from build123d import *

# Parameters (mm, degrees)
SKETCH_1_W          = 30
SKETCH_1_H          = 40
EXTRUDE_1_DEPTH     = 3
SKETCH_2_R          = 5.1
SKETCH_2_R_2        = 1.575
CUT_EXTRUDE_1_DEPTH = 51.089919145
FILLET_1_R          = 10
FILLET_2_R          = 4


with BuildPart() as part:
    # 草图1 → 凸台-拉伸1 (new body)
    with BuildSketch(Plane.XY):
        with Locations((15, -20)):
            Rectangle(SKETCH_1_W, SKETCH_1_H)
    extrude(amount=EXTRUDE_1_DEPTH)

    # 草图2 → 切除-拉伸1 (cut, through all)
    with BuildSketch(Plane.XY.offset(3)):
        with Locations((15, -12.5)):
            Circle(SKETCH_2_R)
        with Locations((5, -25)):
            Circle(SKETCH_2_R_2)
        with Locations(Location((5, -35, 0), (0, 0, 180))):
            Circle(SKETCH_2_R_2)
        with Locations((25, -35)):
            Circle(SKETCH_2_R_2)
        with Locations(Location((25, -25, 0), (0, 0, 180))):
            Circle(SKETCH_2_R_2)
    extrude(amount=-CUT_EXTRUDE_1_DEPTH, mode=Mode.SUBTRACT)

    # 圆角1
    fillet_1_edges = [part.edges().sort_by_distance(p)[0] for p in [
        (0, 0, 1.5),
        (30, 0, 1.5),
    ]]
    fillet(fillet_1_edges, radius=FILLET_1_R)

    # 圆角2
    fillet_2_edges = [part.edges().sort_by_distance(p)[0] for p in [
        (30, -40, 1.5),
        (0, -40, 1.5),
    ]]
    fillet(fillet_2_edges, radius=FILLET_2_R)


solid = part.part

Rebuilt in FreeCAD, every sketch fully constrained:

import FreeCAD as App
import Part
import Sketcher
Q = App.Units.Quantity


def edges_at(feature, points):
    """Names of the edges that pass closest to the given points."""
    edges = feature.Shape.Edges
    near = lambda p: min(range(len(edges)), key=lambda i: edges[i].distToShape(Part.Vertex(*p))[0])
    return sorted({f"Edge{near(p) + 1}" for p in points})

doc = App.newDocument("Part")
body = doc.addObject("PartDesign::Body", "Body")

# Sketch on XY plane
sketch1 = doc.addObject("Sketcher::SketchObject", "Sketch")
body.addObject(sketch1)
sketch1.AttachmentSupport = (doc.XY_Plane, [""])
sketch1.MapMode = "FlatFace"
sketch1.addGeometry([
    Part.LineSegment(App.Vector(0, 0, 0), App.Vector(0, -40, 0)),
    Part.LineSegment(App.Vector(0, -40, 0), App.Vector(30, -40, 0)),
    Part.LineSegment(App.Vector(30, -40, 0), App.Vector(30, 0, 0)),
    Part.LineSegment(App.Vector(30, 0, 0), App.Vector(0, 0, 0)),
], False)
sketch1.addConstraint([
    Sketcher.Constraint("Coincident", 0, 2, 1, 1),
    Sketcher.Constraint("Coincident", 1, 2, 2, 1),
    Sketcher.Constraint("Coincident", 2, 2, 3, 1),
    Sketcher.Constraint("Coincident", 3, 2, 0, 1),
    Sketcher.Constraint("Vertical", 0),
    Sketcher.Constraint("Horizontal", 1),
    Sketcher.Constraint("Vertical", 2),
    Sketcher.Constraint("Horizontal", 3),
    Sketcher.Constraint("Coincident", 3, 2, -1, 1),
    Sketcher.Constraint("DistanceX", 1, 1, 1, 2, Q("30 mm")),
    Sketcher.Constraint("DistanceY", 0, 2, 0, 1, Q("40 mm")),
])
pad1 = doc.addObject("PartDesign::Pad", "Pad")
body.addObject(pad1)
pad1.Profile = sketch1
pad1.Length = 3

# Sketch on XY plane
sketch2 = doc.addObject("Sketcher::SketchObject", "Sketch001")
body.addObject(sketch2)
sketch2.AttachmentSupport = (doc.XY_Plane, [""])
sketch2.MapMode = "FlatFace"
sketch2.AttachmentOffset = App.Placement(App.Vector(0, 0, 3), App.Rotation())
sketch2.addGeometry([
    Part.Circle(App.Vector(15, -12.5, 0), App.Vector(0, 0, 1), 5.1),  # 0
    Part.Circle(App.Vector(5, -25, 0), App.Vector(0, 0, 1), 1.6),  # 1
    Part.Circle(App.Vector(5, -35, 0), App.Vector(0, 0, 1), 1.6),  # 2
    Part.Circle(App.Vector(25, -35, 0), App.Vector(0, 0, 1), 1.6),  # 3
    Part.Circle(App.Vector(25, -25, 0), App.Vector(0, 0, 1), 1.6),  # 4
], False)
sketch2.addConstraint([
    Sketcher.Constraint("Equal", 1, 2),
    Sketcher.Constraint("Equal", 2, 3),
    Sketcher.Constraint("Equal", 3, 4),
    Sketcher.Constraint("Horizontal", 2, 3, 3, 3),
    Sketcher.Constraint("Horizontal", 1, 3, 4, 3),
    Sketcher.Constraint("Vertical", 1, 3, 2, 3),
    Sketcher.Constraint("Vertical", 3, 3, 4, 3),
    Sketcher.Constraint("Diameter", 0, Q("10.2 mm")),
    Sketcher.Constraint("Diameter", 1, Q("3.15 mm")),
    Sketcher.Constraint("DistanceX", -1, 1, 0, 3, Q("15 mm")),
    Sketcher.Constraint("DistanceX", -1, 1, 1, 3, Q("5 mm")),
    Sketcher.Constraint("DistanceY", 1, 3, -1, 1, Q("25 mm")),
    Sketcher.Constraint("DistanceY", 2, 3, -1, 1, Q("35 mm")),
    Sketcher.Constraint("DistanceX", -1, 1, 3, 3, Q("25 mm")),
    Sketcher.Constraint("DistanceY", 0, 3, -1, 1, Q("12.5 mm")),
])
pocket1 = doc.addObject("PartDesign::Pocket", "Pocket")
body.addObject(pocket1)
pocket1.Profile = sketch2
pocket1.Type = "ThroughAll"
doc.recompute()

fillet = doc.addObject("PartDesign::Fillet", "Fillet")
body.addObject(fillet)
fillet.Base = (pocket1, edges_at(pocket1, [(0, 0, 1.5), (30, 0, 1.5)]))
fillet.Radius = 10
doc.recompute()

fillet2 = doc.addObject("PartDesign::Fillet", "Fillet001")
body.addObject(fillet2)
fillet2.Base = (fillet, edges_at(fillet, [(30, -40, 1.5), (0, -40, 1.5)]))
fillet2.Radius = 4

doc.recompute()
